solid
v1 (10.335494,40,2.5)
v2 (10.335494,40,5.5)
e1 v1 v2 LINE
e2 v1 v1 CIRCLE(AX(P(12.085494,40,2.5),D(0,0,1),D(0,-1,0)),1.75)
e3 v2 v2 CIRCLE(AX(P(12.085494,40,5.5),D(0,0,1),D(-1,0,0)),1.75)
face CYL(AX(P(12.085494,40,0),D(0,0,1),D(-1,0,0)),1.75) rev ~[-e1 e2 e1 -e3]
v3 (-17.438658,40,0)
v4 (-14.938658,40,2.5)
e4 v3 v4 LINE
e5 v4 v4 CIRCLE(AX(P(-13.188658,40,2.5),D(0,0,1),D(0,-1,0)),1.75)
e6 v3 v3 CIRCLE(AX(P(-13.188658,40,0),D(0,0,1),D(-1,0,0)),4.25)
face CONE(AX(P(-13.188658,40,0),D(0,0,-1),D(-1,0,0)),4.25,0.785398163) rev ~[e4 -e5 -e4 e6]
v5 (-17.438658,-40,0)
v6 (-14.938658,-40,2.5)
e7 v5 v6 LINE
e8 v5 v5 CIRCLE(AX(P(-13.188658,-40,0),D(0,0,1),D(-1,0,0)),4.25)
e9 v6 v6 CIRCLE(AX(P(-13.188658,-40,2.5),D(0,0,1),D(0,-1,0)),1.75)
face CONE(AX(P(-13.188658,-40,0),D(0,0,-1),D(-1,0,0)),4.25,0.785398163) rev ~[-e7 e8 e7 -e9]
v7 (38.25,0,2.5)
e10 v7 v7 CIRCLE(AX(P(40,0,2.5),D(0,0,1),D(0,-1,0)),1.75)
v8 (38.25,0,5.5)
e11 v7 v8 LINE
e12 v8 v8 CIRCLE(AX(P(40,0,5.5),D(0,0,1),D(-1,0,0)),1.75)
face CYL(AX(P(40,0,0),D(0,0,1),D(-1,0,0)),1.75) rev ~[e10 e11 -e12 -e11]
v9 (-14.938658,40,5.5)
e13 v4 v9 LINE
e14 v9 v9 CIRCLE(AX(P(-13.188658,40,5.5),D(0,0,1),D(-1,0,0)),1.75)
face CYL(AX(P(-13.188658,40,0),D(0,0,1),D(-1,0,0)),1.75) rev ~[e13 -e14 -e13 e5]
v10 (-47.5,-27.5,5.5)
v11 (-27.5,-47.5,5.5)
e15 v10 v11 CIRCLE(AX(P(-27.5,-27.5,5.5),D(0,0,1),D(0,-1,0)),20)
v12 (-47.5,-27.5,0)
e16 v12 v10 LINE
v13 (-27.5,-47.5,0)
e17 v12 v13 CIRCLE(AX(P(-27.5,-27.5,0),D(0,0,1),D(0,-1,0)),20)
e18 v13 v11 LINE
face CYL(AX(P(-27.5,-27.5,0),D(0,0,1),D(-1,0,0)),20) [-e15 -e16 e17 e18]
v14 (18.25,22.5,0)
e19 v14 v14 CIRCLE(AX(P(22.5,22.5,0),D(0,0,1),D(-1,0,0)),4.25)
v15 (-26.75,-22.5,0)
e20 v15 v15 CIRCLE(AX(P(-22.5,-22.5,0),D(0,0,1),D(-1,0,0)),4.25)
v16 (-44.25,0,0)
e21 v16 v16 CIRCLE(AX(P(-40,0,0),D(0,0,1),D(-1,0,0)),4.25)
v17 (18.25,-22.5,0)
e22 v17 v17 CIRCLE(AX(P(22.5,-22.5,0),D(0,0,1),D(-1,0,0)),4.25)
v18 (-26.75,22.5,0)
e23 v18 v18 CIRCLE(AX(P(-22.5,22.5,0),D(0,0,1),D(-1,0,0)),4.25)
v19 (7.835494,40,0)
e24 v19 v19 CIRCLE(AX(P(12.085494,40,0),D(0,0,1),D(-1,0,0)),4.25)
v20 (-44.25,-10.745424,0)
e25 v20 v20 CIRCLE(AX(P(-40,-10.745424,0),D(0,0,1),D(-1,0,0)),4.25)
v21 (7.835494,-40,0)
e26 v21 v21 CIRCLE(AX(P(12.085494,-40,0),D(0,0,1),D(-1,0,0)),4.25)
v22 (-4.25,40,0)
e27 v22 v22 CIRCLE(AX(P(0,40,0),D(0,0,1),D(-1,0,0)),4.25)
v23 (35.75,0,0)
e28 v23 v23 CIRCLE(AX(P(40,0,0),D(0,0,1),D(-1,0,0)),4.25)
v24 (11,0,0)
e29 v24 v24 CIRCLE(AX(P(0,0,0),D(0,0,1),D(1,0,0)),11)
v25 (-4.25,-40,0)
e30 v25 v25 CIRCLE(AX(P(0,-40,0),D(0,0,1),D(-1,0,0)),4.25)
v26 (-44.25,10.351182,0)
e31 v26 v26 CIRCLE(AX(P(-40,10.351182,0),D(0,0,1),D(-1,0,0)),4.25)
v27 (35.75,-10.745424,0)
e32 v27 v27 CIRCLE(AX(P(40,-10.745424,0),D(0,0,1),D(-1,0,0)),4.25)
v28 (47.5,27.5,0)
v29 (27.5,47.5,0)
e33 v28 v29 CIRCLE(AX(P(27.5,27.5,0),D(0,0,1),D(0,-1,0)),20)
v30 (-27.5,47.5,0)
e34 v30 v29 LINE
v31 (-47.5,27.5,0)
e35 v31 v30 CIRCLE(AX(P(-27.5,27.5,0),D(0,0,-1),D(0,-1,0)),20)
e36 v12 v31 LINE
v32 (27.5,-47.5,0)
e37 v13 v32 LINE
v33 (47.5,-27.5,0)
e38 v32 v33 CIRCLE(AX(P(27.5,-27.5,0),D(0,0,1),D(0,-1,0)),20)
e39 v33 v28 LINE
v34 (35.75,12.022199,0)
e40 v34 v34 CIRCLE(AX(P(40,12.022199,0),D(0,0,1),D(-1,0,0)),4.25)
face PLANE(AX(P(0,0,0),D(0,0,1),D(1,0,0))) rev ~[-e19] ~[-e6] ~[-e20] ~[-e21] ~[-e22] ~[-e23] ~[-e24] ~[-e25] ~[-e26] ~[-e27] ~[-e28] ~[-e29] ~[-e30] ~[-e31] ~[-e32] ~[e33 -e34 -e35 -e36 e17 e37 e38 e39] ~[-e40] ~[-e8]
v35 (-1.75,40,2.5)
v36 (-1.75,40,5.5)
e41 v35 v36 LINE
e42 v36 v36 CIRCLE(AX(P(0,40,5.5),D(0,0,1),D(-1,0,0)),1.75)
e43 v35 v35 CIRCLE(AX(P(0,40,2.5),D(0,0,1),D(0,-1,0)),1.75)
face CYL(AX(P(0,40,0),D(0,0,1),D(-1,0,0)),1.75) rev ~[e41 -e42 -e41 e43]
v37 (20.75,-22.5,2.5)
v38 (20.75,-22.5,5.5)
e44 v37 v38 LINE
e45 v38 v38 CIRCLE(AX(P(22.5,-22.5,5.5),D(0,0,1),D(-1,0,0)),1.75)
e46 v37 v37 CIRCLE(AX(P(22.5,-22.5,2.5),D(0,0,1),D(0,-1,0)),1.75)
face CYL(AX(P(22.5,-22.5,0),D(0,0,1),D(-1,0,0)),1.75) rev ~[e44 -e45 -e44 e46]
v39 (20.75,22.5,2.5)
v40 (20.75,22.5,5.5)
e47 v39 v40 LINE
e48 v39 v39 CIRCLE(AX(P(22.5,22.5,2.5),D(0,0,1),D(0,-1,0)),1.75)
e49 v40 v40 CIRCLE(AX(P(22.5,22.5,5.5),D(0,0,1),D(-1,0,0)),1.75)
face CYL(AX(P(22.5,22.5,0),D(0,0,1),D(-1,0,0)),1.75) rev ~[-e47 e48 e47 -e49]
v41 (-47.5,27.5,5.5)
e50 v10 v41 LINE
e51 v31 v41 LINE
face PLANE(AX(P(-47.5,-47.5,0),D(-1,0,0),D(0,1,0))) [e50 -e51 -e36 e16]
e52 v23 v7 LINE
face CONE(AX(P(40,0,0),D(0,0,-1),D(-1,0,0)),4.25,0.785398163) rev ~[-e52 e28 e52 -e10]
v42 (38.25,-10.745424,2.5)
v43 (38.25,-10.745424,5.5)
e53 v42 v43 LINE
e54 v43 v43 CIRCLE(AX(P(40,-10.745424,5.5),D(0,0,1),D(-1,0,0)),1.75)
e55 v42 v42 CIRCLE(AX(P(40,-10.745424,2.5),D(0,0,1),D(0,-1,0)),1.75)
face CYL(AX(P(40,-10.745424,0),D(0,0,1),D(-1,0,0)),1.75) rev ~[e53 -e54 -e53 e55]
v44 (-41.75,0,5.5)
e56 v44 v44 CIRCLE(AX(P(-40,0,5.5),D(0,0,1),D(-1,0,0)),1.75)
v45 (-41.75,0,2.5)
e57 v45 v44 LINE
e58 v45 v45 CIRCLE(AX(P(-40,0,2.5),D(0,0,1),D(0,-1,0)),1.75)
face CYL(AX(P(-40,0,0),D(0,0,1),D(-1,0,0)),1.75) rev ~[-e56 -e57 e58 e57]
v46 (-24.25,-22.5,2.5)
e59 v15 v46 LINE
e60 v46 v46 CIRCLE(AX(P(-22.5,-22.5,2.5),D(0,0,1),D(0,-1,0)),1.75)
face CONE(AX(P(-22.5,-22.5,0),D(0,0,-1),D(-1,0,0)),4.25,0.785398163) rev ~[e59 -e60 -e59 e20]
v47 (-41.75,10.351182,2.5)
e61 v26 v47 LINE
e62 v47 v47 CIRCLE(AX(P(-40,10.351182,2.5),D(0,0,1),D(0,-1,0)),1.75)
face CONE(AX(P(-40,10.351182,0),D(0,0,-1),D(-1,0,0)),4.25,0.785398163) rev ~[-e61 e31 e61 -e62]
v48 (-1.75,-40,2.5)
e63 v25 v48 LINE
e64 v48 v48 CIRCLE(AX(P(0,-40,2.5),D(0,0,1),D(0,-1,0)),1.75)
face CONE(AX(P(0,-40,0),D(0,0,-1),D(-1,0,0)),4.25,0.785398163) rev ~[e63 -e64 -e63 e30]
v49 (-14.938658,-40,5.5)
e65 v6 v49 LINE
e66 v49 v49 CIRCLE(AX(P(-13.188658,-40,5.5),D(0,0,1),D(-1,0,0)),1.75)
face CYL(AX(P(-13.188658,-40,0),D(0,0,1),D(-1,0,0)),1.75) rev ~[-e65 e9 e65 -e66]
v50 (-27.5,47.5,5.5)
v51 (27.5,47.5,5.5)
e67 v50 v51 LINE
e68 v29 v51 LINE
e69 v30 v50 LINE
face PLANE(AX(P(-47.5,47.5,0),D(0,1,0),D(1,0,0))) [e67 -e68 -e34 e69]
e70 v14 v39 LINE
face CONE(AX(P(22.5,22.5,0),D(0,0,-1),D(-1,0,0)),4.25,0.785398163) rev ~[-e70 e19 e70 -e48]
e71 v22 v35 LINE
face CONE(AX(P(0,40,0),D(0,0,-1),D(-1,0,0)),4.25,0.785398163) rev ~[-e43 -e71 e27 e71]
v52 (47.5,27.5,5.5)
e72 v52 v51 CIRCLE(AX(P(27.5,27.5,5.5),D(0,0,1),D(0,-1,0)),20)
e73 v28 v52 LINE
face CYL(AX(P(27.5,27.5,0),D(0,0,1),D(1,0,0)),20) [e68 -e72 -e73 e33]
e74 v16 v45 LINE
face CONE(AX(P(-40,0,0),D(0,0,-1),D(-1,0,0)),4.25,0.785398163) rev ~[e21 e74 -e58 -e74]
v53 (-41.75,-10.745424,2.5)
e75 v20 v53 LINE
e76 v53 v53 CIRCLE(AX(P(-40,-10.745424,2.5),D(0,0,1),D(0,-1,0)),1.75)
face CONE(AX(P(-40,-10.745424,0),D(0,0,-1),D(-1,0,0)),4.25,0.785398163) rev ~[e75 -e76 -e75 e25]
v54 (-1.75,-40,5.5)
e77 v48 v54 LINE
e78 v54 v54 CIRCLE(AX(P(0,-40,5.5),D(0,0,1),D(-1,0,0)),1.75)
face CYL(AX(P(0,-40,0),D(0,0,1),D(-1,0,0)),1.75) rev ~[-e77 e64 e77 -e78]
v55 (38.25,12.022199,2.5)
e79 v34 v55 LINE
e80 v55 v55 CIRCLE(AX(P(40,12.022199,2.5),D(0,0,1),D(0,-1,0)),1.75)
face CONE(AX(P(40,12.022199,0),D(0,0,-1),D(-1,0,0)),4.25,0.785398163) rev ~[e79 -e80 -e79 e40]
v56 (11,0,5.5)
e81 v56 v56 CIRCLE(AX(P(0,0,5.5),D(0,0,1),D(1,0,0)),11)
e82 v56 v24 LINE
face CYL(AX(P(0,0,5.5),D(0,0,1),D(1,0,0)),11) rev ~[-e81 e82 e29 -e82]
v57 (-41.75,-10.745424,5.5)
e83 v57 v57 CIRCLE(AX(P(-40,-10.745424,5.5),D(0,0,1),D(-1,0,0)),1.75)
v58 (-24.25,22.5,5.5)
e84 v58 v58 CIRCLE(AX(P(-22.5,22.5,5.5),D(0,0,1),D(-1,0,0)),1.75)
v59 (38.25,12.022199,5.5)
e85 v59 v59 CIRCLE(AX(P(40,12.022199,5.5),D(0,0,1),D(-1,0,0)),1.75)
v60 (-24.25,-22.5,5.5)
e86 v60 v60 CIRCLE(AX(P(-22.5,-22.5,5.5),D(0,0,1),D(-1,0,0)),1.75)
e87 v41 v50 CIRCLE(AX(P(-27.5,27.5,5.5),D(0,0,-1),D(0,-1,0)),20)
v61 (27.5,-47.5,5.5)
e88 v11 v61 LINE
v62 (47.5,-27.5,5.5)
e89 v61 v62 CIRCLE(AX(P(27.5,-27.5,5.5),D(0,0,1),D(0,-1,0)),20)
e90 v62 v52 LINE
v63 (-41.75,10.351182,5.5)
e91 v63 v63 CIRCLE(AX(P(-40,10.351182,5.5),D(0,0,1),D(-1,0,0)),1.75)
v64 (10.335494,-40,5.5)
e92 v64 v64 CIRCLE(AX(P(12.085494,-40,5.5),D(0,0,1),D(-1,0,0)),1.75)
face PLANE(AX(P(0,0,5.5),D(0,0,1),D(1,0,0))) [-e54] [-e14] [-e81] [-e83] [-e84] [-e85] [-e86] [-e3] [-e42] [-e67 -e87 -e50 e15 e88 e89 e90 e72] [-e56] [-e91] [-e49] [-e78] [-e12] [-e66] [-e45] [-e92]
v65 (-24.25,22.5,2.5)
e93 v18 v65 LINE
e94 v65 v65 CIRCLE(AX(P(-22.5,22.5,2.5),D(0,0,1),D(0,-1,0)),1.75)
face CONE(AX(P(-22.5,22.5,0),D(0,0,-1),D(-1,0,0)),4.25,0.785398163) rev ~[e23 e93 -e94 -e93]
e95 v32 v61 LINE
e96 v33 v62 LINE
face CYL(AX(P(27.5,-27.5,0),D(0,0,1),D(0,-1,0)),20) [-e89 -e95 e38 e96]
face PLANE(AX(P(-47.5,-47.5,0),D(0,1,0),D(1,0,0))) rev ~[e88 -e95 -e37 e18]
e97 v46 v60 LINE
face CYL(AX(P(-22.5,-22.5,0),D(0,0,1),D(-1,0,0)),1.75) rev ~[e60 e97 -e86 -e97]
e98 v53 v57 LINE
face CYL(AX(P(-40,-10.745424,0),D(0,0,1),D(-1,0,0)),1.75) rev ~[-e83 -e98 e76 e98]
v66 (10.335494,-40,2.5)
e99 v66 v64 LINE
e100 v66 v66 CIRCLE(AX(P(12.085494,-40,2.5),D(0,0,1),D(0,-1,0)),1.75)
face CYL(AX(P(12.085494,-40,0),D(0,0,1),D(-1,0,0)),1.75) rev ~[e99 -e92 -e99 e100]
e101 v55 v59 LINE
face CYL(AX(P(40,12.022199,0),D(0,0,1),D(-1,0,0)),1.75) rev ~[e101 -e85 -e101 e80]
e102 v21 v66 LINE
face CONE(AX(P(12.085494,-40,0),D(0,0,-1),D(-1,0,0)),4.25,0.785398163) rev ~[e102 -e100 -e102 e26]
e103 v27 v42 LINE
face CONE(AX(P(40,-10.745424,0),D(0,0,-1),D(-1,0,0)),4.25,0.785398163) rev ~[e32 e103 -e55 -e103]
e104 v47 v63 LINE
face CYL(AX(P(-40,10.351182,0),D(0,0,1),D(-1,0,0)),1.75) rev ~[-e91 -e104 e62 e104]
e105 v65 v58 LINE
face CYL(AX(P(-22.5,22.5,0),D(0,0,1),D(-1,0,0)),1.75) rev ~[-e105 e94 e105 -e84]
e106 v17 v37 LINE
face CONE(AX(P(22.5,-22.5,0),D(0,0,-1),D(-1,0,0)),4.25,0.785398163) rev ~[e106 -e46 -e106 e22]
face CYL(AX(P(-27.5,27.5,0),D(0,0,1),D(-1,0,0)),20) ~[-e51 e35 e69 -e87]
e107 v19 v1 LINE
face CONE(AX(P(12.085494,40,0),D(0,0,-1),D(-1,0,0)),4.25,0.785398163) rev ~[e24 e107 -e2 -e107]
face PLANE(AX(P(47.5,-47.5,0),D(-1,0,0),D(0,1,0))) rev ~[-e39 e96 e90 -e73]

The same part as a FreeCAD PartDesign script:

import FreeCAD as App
import Part
import Sketcher

V = App.Vector


def edges_at(feature, points):
    """Names of the edges that pass closest to the given points."""
    edges = feature.Shape.Edges
    near = lambda p: min(range(len(edges)), key=lambda i: edges[i].distToShape(Part.Vertex(*p))[0])
    return sorted({f"Edge{near(p) + 1}" for p in points})


def add_polygon(sketch, points):
    """Adds a closed chain of lines whose ends are joined by coincident constraints."""
    first, n = sketch.GeometryCount, len(points)
    for a, b in zip(points, points[1:] + points[:1]):
        sketch.addGeometry(Part.LineSegment(App.Vector(*a, 0), App.Vector(*b, 0)), False)
    for i in range(n):
        sketch.addConstraint(Sketcher.Constraint("Coincident", first + i, 2, first + (i + 1) % n, 1))

doc = App.newDocument("Part")
params = doc.addObject("Spreadsheet::Sheet", "Params")
for row, (alias, value) in enumerate([
    ("sketch1_width", "95 mm"),
    ("pad1_length", "5.5 mm"),
    ("fillet_radius", "20 mm"),
    ("sketch2_diameter", "22 mm"),
    ("pocket1_length", "5.5 mm"),
    ("sketch3_diameter", "3.5 mm"),
    ("hole_diameter", "3.5 mm"),
    ("hole_csink_diameter", "8.5 mm"),
    ("sketch4_diameter", "3.5 mm"),
    ("hole2_diameter", "3.5 mm"),
    ("hole2_csink_diameter", "8.5 mm"),
    ("sketch5_diameter", "3.5 mm"),
    ("hole3_diameter", "3.5 mm"),
    ("hole3_csink_diameter", "8.5 mm"),
], start=1):
    params.set(f"A{row}", alias)
    params.set(f"B{row}", "=" + value)
    params.setAlias(f"B{row}", alias)

body = doc.addObject("PartDesign::Body", "Body")

# Sketch on XY plane
sketch1 = doc.addObject("Sketcher::SketchObject", "Sketch")
body.addObject(sketch1)
sketch1.AttachmentSupport = (doc.XY_Plane, [""])
sketch1.MapMode = "FlatFace"
add_polygon(sketch1, [(-48, 48), (-48, -48), (48, -48), (48, 48)])  # lines 0-3
sketch1.addConstraint(Sketcher.Constraint("Vertical", 0))
sketch1.addConstraint(Sketcher.Constraint("Horizontal", 1))
sketch1.addConstraint(Sketcher.Constraint("Vertical", 2))
sketch1.addConstraint(Sketcher.Constraint("Horizontal", 3))
sketch1.addConstraint(Sketcher.Constraint("Symmetric", 0, 2, 2, 2, -1, 1))
sketch1.addConstraint(Sketcher.Constraint("Equal", 3, 0))
sketch1.addConstraint(Sketcher.Constraint("DistanceX", 1, 1, 1, 2, 95.0))
sketch1.setExpression("Constraints[10]", "Params.sketch1_width")
pad1 = doc.addObject("PartDesign::Pad", "Pad")
body.addObject(pad1)
pad1.Profile = sketch1
pad1.setExpression("Length", "Params.pad1_length")
doc.recompute()

fillet = doc.addObject("PartDesign::Fillet", "Fillet")
body.addObject(fillet)
fillet.Base = (pad1, edges_at(pad1, [
    (47.5, -47.5, 2.75),
    (47.5, 47.5, 2.75),
    (-47.5, 47.5, 2.75),
    (-47.5, -47.5, 2.75),
]))
fillet.setExpression("Radius", "Params.fillet_radius")

# Sketch on XY plane
sketch2 = doc.addObject("Sketcher::SketchObject", "Sketch001")
body.addObject(sketch2)
sketch2.AttachmentSupport = (doc.XY_Plane, [""])
sketch2.MapMode = "FlatFace"
sketch2.AttachmentOffset = App.Placement(V(0, 0, 5.5), App.Rotation())
sketch2.addGeometry(Part.Circle(V(0, 0, 0), V(0, 0, 1), 11), False)
sketch2.addConstraint(Sketcher.Constraint("Coincident", 0, 3, -1, 1))
sketch2.addConstraint(Sketcher.Constraint("Diameter", 0, 22.0))
sketch2.setExpression("Constraints[1]", "Params.sketch2_diameter")
pocket1 = doc.addObject("PartDesign::Pocket", "Pocket")
body.addObject(pocket1)
pocket1.Profile = sketch2
pocket1.setExpression("Length", "Params.pocket1_length")

# Sketch on XY plane
sketch3 = doc.addObject("Sketcher::SketchObject", "Sketch002")
body.addObject(sketch3)
sketch3.AttachmentSupport = (doc.XY_Plane, [""])
sketch3.MapMode = "FlatFace"
sketch3.addGeometry(Part.Circle(V(0, 40, 0), V(0, 0, 1), 1.8), False)
sketch3.addGeometry(Part.Circle(V(0, -40, 0), V(0, 0, 1), 1.8), False)
sketch3.addGeometry(Part.Circle(V(40, 0, 0), V(0, 0, 1), 1.8), False)
sketch3.addGeometry(Part.Circle(V(-40, 0, 0), V(0, 0, 1), 1.8), False)
sketch3.addConstraint(Sketcher.Constraint("Equal", 0, 1))
sketch3.addConstraint(Sketcher.Constraint("Equal", 1, 2))
sketch3.addConstraint(Sketcher.Constraint("Equal", 2, 3))
sketch3.addConstraint(Sketcher.Constraint("Symmetric", 0, 3, 1, 3, -1, 1))
sketch3.addConstraint(Sketcher.Constraint("Symmetric", 2, 3, 3, 3, -1, 1))
sketch3.addConstraint(Sketcher.Constraint("PointOnObject", 0, 3, -2))
sketch3.addConstraint(Sketcher.Constraint("PointOnObject", 2, 3, -1))
sketch3.addConstraint(Sketcher.Constraint("Diameter", 0, 3.5))
sketch3.addConstraint(Sketcher.Constraint("DistanceY", -1, 1, 0, 3, 40.0))
sketch3.addConstraint(Sketcher.Constraint("DistanceX", -1, 1, 2, 3, 40.0))
sketch3.setExpression("Constraints[7]", "Params.sketch3_diameter")
doc.recompute()
hole = doc.addObject("PartDesign::Hole", "Hole")
body.addObject(hole)
hole.Profile = sketch3
hole.ThreadType = "None"
hole.setExpression("Diameter", "Params.hole_diameter")
hole.DepthType = "ThroughAll"
hole.HoleCutType = "Countersink"
hole.setExpression("HoleCutDiameter", "Params.hole_csink_diameter")
hole.HoleCutCountersinkAngle = 90
hole.Reversed = True

# Sketch on XY plane
sketch4 = doc.addObject("Sketcher::SketchObject", "Sketch003")
body.addObject(sketch4)
sketch4.AttachmentSupport = (doc.XY_Plane, [""])
sketch4.MapMode = "FlatFace"
sketch4.addGeometry(Part.Circle(V(-13.2, -40, 0), V(0, 0, 1), 1.8), False)
sketch4.addGeometry(Part.Circle(V(12.1, -40, 0), V(0, 0, 1), 1.8), False)
sketch4.addGeometry(Part.Circle(V(40, -10.7, 0), V(0, 0, 1), 1.8), False)
sketch4.addGeometry(Part.Circle(V(40, 12, 0), V(0, 0, 1), 1.8), False)
sketch4.addGeometry(Part.Circle(V(12.1, 40, 0), V(0, 0, 1), 1.8), False)
sketch4.addGeometry(Part.Circle(V(-13.2, 40, 0), V(0, 0, 1), 1.8), False)
sketch4.addGeometry(Part.Circle(V(-40, 10.4, 0), V(0, 0, 1), 1.8), False)
sketch4.addGeometry(Part.Circle(V(-40, -10.7, 0), V(0, 0, 1), 1.8), False)
sketch4.addConstraint(Sketcher.Constraint("Equal", 0, 1))
sketch4.addConstraint(Sketcher.Constraint("Equal", 1, 2))
sketch4.addConstraint(Sketcher.Constraint("Equal", 2, 3))
sketch4.addConstraint(Sketcher.Constraint("Equal", 3, 4))
sketch4.addConstraint(Sketcher.Constraint("Equal", 4, 5))
sketch4.addConstraint(Sketcher.Constraint("Equal", 5, 6))
sketch4.addConstraint(Sketcher.Constraint("Equal", 6, 7))
sketch4.addConstraint(Sketcher.Constraint("Symmetric", 2, 3, 7, 3, -2))
sketch4.addConstraint(Sketcher.Constraint("Symmetric", 1, 3, 4, 3, -1))
sketch4.addConstraint(Sketcher.Constraint("Symmetric", 0, 3, 5, 3, -1))
sketch4.addConstraint(Sketcher.Constraint("Horizontal", 0, 3, 1, 3))
sketch4.addConstraint(Sketcher.Constraint("Vertical", 2, 3, 3, 3))
sketch4.addConstraint(Sketcher.Constraint("Vertical", 6, 3, 7, 3))
sketch4.addConstraint(Sketcher.Constraint("Diameter", 0, 3.5))
sketch4.addConstraint(Sketcher.Constraint("DistanceY", 0, 3, -1, 1, 40.0))
sketch4.addConstraint(Sketcher.Constraint("DistanceX", -1, 1, 2, 3, 40.0))
sketch4.addConstraint(Sketcher.Constraint("DistanceY", -1, 1, 3, 3, 12.022199))
sketch4.addConstraint(Sketcher.Constraint("DistanceX", 0, 3, 2, 3, 53.188658))
sketch4.addConstraint(Sketcher.Constraint("DistanceX", -1, 1, 1, 3, 12.085494))
sketch4.addConstraint(Sketcher.Constraint("DistanceY", 2, 3, -1, 1, 10.745424))
sketch4.addConstraint(Sketcher.Constraint("DistanceY", -1, 1, 6, 3, 10.351182))
sketch4.setExpression("Constraints[13]", "Params.sketch4_diameter")
doc.recompute()
hole2 = doc.addObject("PartDesign::Hole", "Hole001")
body.addObject(hole2)
hole2.Profile = sketch4
hole2.ThreadType = "None"
hole2.setExpression("Diameter", "Params.hole2_diameter")
hole2.DepthType = "ThroughAll"
hole2.HoleCutType = "Countersink"
hole2.setExpression("HoleCutDiameter", "Params.hole2_csink_diameter")
hole2.HoleCutCountersinkAngle = 90
hole2.Reversed = True

# Sketch on XY plane
sketch5 = doc.addObject("Sketcher::SketchObject", "Sketch004")
body.addObject(sketch5)
sketch5.AttachmentSupport = (doc.XY_Plane, [""])
sketch5.MapMode = "FlatFace"
sketch5.addGeometry(Part.Circle(V(-22.5, -22.5, 0), V(0, 0, 1), 1.8), False)
sketch5.addGeometry(Part.Circle(V(22.5, -22.5, 0), V(0, 0, 1), 1.8), False)
sketch5.addGeometry(Part.Circle(V(22.5, 22.5, 0), V(0, 0, 1), 1.8), False)
sketch5.addGeometry(Part.Circle(V(-22.5, 22.5, 0), V(0, 0, 1), 1.8), False)
sketch5.addConstraint(Sketcher.Constraint("Equal", 0, 1))
sketch5.addConstraint(Sketcher.Constraint("Equal", 1, 2))
sketch5.addConstraint(Sketcher.Constraint("Equal", 2, 3))
sketch5.addConstraint(Sketcher.Constraint("Symmetric", 0, 3, 2, 3, -1, 1))
sketch5.addConstraint(Sketcher.Constraint("Symmetric", 1, 3, 3, 3, -1, 1))
sketch5.addConstraint(Sketcher.Constraint("Symmetric", 0, 3, 1, 3, -2))
sketch5.addConstraint(Sketcher.Constraint("Diameter", 0, 3.5))
sketch5.addConstraint(Sketcher.Constraint("DistanceX", 0, 3, 1, 3, 45.0))
sketch5.addConstraint(Sketcher.Constraint("DistanceY", 1, 3, 2, 3, 45.0))
sketch5.setExpression("Constraints[6]", "Params.sketch5_diameter")
doc.recompute()
hole3 = doc.addObject("PartDesign::Hole", "Hole002")
body.addObject(hole3)
hole3.Profile = sketch5
hole3.ThreadType = "None"
hole3.setExpression("Diameter", "Params.hole3_diameter")
hole3.DepthType = "ThroughAll"
hole3.HoleCutType = "Countersink"
hole3.setExpression("HoleCutDiameter", "Params.hole3_csink_diameter")
hole3.HoleCutCountersinkAngle = 90
hole3.Reversed = True

doc.recompute()
